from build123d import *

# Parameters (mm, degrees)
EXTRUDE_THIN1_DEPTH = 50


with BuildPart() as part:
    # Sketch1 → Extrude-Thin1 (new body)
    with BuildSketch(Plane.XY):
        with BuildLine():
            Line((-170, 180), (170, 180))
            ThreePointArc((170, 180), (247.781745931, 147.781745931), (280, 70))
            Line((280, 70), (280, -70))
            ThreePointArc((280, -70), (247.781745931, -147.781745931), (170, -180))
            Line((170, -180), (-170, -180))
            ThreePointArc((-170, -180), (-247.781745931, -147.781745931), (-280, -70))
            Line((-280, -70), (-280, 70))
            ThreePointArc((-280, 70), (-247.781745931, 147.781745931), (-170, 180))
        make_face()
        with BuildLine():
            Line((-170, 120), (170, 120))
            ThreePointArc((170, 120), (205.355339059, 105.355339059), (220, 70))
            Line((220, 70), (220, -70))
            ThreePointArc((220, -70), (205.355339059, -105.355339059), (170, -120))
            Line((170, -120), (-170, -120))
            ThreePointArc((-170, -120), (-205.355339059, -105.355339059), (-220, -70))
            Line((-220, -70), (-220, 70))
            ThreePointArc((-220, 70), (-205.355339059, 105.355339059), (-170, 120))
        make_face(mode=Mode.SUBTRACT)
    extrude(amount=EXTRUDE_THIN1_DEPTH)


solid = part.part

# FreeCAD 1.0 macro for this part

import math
import FreeCAD as App
import Part
import Sketcher

V = App.Vector
Q = App.Units.Quantity

doc = App.newDocument("Part")
body = doc.addObject("PartDesign::Body", "Body")

sketch1 = body.newObject("Sketcher::SketchObject", "Sketch")
sketch1.AttachmentSupport = (doc.getObject("XY_Plane"), [""])
sketch1.MapMode = "FlatFace"
sketch1.addGeometry(Part.LineSegment(V(170, 180, 0), V(-170, 180, 0)), False)
sketch1.addGeometry(Part.ArcOfCircle(Part.Circle(V(-170, 70, 0), V(0, 0, 1), 110), math.radians(90), math.radians(180)), False)
sketch1.addGeometry(Part.LineSegment(V(-280, 70, 0), V(-280, -70, 0)), False)
sketch1.addGeometry(Part.ArcOfCircle(Part.Circle(V(-170, -70, 0), V(0, 0, 1), 110), math.radians(180), math.radians(270)), False)
sketch1.addGeometry(Part.LineSegment(V(-170, -180, 0), V(170, -180, 0)), False)
sketch1.addGeometry(Part.ArcOfCircle(Part.Circle(V(170, -70, 0), V(0, 0, 1), 110), math.radians(-90), math.radians(0)), False)
sketch1.addGeometry(Part.LineSegment(V(280, -70, 0), V(280, 70, 0)), False)
sketch1.addGeometry(Part.ArcOfCircle(Part.Circle(V(170, 70, 0), V(0, 0, 1), 110), math.radians(0), math.radians(90)), False)
sketch1.addGeometry(Part.LineSegment(V(-170, 120, 0), V(170, 120, 0)), False)
sketch1.addGeometry(Part.ArcOfCircle(Part.Circle(V(170, 70, 0), V(0, 0, 1), 50), math.radians(0), math.radians(90)), False)
sketch1.addGeometry(Part.LineSegment(V(220, 70, 0), V(220, -70, 0)), False)
sketch1.addGeometry(Part.ArcOfCircle(Part.Circle(V(170, -70, 0), V(0, 0, 1), 50), math.radians(-90), math.radians(0)), False)
sketch1.addGeometry(Part.LineSegment(V(170, -120, 0), V(-170, -120, 0)), False)
sketch1.addGeometry(Part.ArcOfCircle(Part.Circle(V(-170, -70, 0), V(0, 0, 1), 50), math.radians(-180), math.radians(-90)), False)
sketch1.addGeometry(Part.LineSegment(V(-220, -70, 0), V(-220, 70, 0)), False)
sketch1.addGeometry(Part.ArcOfCircle(Part.Circle(V(-170, 70, 0), V(0, 0, 1), 50), math.radians(90), math.radians(180)), False)
sketch1.addConstraint(Sketcher.Constraint("Tangent", 0, 2, 1, 1))
sketch1.addConstraint(Sketcher.Constraint("Tangent", 1, 2, 2, 1))
sketch1.addConstraint(Sketcher.Constraint("Tangent", 2, 2, 3, 1))
sketch1.addConstraint(Sketcher.Constraint("Tangent", 3, 2, 4, 1))
sketch1.addConstraint(Sketcher.Constraint("Tangent", 4, 2, 5, 1))
sketch1.addConstraint(Sketcher.Constraint("Tangent", 5, 2, 6, 1))
sketch1.addConstraint(Sketcher.Constraint("Tangent", 6, 2, 7, 1))
sketch1.addConstraint(Sketcher.Constraint("Tangent", 7, 2, 0, 1))
sketch1.addConstraint(Sketcher.Constraint("Tangent", 8, 2, 9, 2))
sketch1.addConstraint(Sketcher.Constraint("Tangent", 9, 1, 10, 1))
sketch1.addConstraint(Sketcher.Constraint("Tangent", 10, 2, 11, 2))
sketch1.addConstraint(Sketcher.Constraint("Tangent", 11, 1, 12, 1))
sketch1.addConstraint(Sketcher.Constraint("Tangent", 12, 2, 13, 2))
sketch1.addConstraint(Sketcher.Constraint("Tangent", 13, 1, 14, 1))
sketch1.addConstraint(Sketcher.Constraint("Tangent", 14, 2, 15, 2))
sketch1.addConstraint(Sketcher.Constraint("Tangent", 15, 1, 8, 1))
sketch1.addConstraint(Sketcher.Constraint("Horizontal", 0))
sketch1.addConstraint(Sketcher.Constraint("Vertical", 2))
sketch1.addConstraint(Sketcher.Constraint("Horizontal", 4))
sketch1.addConstraint(Sketcher.Constraint("Vertical", 6))
sketch1.addConstraint(Sketcher.Constraint("Horizontal", 8))
sketch1.addConstraint(Sketcher.Constraint("Vertical", 10))
sketch1.addConstraint(Sketcher.Constraint("Horizontal", 12))
sketch1.addConstraint(Sketcher.Constraint("Vertical", 14))
sketch1.addConstraint(Sketcher.Constraint("Coincident", 9, 3, 7, 3))
sketch1.addConstraint(Sketcher.Constraint("Coincident", 11, 3, 5, 3))
sketch1.addConstraint(Sketcher.Constraint("Coincident", 13, 3, 3, 3))
sketch1.addConstraint(Sketcher.Constraint("Equal", 1, 3))
sketch1.addConstraint(Sketcher.Constraint("Equal", 3, 5))
sketch1.addConstraint(Sketcher.Constraint("Equal", 5, 7))
sketch1.addConstraint(Sketcher.Constraint("Equal", 13, 15))
sketch1.addConstraint(Sketcher.Constraint("Symmetric", 1, 3, 5, 3, -1, 1))
sketch1.addConstraint(Sketcher.Constraint("Radius", 1, Q("110 mm")))
sketch1.addConstraint(Sketcher.Constraint("Radius", 9, Q("50 mm")))
sketch1.addConstraint(Sketcher.Constraint("DistanceX", 0, 2, 0, 1, Q("340 mm")))
sketch1.addConstraint(Sketcher.Constraint("DistanceY", 2, 2, 2, 1, Q("140 mm")))
pad1 = body.newObject("PartDesign::Pad", "Pad")
pad1.Profile = sketch1
pad1.Length = 50

doc.recompute()
